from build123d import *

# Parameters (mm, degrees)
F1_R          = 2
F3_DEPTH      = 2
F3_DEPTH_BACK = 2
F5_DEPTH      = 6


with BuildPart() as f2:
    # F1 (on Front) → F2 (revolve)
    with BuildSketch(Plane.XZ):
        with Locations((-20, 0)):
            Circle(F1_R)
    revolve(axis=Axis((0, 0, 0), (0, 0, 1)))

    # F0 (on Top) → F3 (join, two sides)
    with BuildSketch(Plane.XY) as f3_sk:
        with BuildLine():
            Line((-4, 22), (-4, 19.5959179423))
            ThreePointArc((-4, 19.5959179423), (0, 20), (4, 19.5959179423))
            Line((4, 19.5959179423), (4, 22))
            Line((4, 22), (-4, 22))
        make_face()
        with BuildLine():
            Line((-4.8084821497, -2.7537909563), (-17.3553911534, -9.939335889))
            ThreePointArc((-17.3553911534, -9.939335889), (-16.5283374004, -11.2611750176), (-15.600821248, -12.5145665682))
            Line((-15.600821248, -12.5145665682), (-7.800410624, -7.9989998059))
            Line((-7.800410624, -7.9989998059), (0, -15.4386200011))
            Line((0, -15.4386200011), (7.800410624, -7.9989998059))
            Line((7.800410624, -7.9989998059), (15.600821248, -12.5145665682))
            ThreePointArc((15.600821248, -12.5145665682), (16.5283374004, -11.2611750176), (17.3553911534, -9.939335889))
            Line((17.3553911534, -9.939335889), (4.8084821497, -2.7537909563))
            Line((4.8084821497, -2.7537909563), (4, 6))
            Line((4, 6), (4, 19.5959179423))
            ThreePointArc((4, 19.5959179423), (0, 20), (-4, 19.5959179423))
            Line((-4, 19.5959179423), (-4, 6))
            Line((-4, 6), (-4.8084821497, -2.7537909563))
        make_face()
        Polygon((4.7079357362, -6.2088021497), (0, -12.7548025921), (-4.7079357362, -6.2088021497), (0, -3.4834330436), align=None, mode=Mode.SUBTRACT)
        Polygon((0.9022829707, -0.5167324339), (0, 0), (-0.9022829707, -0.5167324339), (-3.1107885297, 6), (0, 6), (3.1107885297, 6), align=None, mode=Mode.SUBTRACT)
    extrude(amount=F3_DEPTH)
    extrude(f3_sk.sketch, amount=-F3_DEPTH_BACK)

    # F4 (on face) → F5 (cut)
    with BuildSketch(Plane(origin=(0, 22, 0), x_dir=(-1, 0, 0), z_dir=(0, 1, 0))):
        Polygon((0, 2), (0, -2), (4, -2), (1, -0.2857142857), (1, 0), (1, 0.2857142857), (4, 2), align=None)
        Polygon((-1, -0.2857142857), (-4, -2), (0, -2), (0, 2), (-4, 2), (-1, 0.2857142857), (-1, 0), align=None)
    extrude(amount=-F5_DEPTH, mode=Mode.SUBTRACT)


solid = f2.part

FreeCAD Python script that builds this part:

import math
import FreeCAD as App
import Part
import Sketcher

V = App.Vector

doc = App.newDocument("Part")
body = doc.addObject("PartDesign::Body", "Body")

sketch1 = doc.addObject("Sketcher::SketchObject", "Sketch")
body.addObject(sketch1)
sketch1.AttachmentSupport = (doc.XZ_Plane, [""])
sketch1.MapMode = "FlatFace"
sketch1.addGeometry(Part.Circle(V(-20, 0, 0), V(0, 0, 1), 2), False)
sketch1.addConstraint([
    Sketcher.Constraint("PointOnObject", 0, 3, -1),
    Sketcher.Constraint("Diameter", 0, 4.0),
    Sketcher.Constraint("DistanceX", 0, 3, -1, 1, 20.0),
])
revolution = doc.addObject("PartDesign::Revolution", "Revolution")
body.addObject(revolution)
revolution.Profile = sketch1
revolution.ReferenceAxis = (sketch1, ["V_Axis"])
revolution.Angle = 360

sketch2 = doc.addObject("Sketcher::SketchObject", "Sketch001")
body.addObject(sketch2)
sketch2.AttachmentSupport = (doc.XY_Plane, [""])
sketch2.MapMode = "FlatFace"
sketch2.addGeometry([
    Part.LineSegment(V(-4, 22, 0), V(-4, 6, 0)),
    Part.LineSegment(V(-4, 6, 0), V(-4.8, -2.8, 0)),
    Part.LineSegment(V(-4.8, -2.8, 0), V(-17.4, -9.9, 0)),
    Part.ArcOfCircle(Part.Circle(V(0, 0, 0), V(0, 0, 1), 20), math.radians(-150.2), math.radians(-141.26)),
    Part.LineSegment(V(-15.6, -12.5, 0), V(-7.8, -8, 0)),
    Part.LineSegment(V(-7.8, -8, 0), V(0, -15.4, 0)),
    Part.LineSegment(V(0, -15.4, 0), V(7.8, -8, 0)),
    Part.LineSegment(V(7.8, -8, 0), V(15.6, -12.5, 0)),
    Part.ArcOfCircle(Part.Circle(V(0, 0, 0), V(0, 0, 1), 20), math.radians(-38.74), math.radians(-29.8)),
    Part.LineSegment(V(17.4, -9.9, 0), V(4.8, -2.8, 0)),
    Part.LineSegment(V(4.8, -2.8, 0), V(4, 6, 0)),
    Part.LineSegment(V(4, 6, 0), V(4, 22, 0)),
    Part.LineSegment(V(4, 22, 0), V(-4, 22, 0)),
    Part.LineSegment(V(0, -3.5, 0), V(4.7, -6.2, 0)),
    Part.LineSegment(V(4.7, -6.2, 0), V(0, -12.8, 0)),
    Part.LineSegment(V(0, -12.8, 0), V(-4.7, -6.2, 0)),
    Part.LineSegment(V(-4.7, -6.2, 0), V(0, -3.5, 0)),
    Part.LineSegment(V(3.1, 6, 0), V(0.9, -0.5, 0)),
    Part.LineSegment(V(0.9, -0.5, 0), V(0, 0, 0)),
    Part.LineSegment(V(0, 0, 0), V(-0.9, -0.5, 0)),
    Part.LineSegment(V(-0.9, -0.5, 0), V(-3.1, 6, 0)),
    Part.LineSegment(V(-3.1, 6, 0), V(3.1, 6, 0)),
], False)
sketch2.addConstraint([
    Sketcher.Constraint("Coincident", 0, 2, 1, 1),
    Sketcher.Constraint("Coincident", 1, 2, 2, 1),
    Sketcher.Constraint("Coincident", 2, 2, 3, 1),
    Sketcher.Constraint("Coincident", 3, 2, 4, 1),
    Sketcher.Constraint("Coincident", 4, 2, 5, 1),
    Sketcher.Constraint("Coincident", 5, 2, 6, 1),
    Sketcher.Constraint("Coincident", 6, 2, 7, 1),
    Sketcher.Constraint("Coincident", 7, 2, 8, 1),
    Sketcher.Constraint("Coincident", 8, 2, 9, 1),
    Sketcher.Constraint("Coincident", 9, 2, 10, 1),
    Sketcher.Constraint("Coincident", 10, 2, 11, 1),
    Sketcher.Constraint("Coincident", 11, 2, 12, 1),
    Sketcher.Constraint("Coincident", 12, 2, 0, 1),
    Sketcher.Constraint("Coincident", 13, 2, 14, 1),
    Sketcher.Constraint("Coincident", 14, 2, 15, 1),
    Sketcher.Constraint("Coincident", 15, 2, 16, 1),
    Sketcher.Constraint("Coincident", 16, 2, 13, 1),
    Sketcher.Constraint("Coincident", 17, 2, 18, 1),
    Sketcher.Constraint("Coincident", 18, 2, 19, 1),
    Sketcher.Constraint("Coincident", 19, 2, 20, 1),
    Sketcher.Constraint("Coincident", 20, 2, 21, 1),
    Sketcher.Constraint("Coincident", 21, 2, 17, 1),
    Sketcher.Constraint("Vertical", 0),
    Sketcher.Constraint("Vertical", 11),
    Sketcher.Constraint("Horizontal", 12),
    Sketcher.Constraint("Horizontal", 21),
    Sketcher.Constraint("Coincident", 3, 3, -1, 1),
    Sketcher.Constraint("Coincident", 8, 3, -1, 1),
    Sketcher.Constraint("Coincident", 18, 2, -1, 1),
    Sketcher.Constraint("Equal", 3, 8),
    Sketcher.Constraint("Symmetric", 4, 2, 6, 2, -2),
    Sketcher.Constraint("Symmetric", 1, 2, 9, 2, -2),
    Sketcher.Constraint("Symmetric", 0, 2, 10, 2, -2),
    Sketcher.Constraint("Symmetric", 13, 2, 15, 2, -2),
    Sketcher.Constraint("Symmetric", 17, 2, 19, 2, -2),
    Sketcher.Constraint("PointOnObject", 5, 2, -2),
    Sketcher.Constraint("PointOnObject", 14, 2, -2),
    Sketcher.Constraint("PointOnObject", 16, 2, -2),
    Sketcher.Constraint("Parallel", 7, 13),
    Sketcher.Constraint("Parallel", 4, 16),
    Sketcher.Constraint("Parallel", 9, 18),
    Sketcher.Constraint("Parallel", 2, 19),
    Sketcher.Constraint("Horizontal", 10, 2, 20, 2),
    Sketcher.Constraint("Equal", 17, 20),
    Sketcher.Constraint("Radius", 3, 20.0),
    Sketcher.Constraint("DistanceX", 12, 2, 12, 1, 8.0),
    Sketcher.Constraint("DistanceY", 0, 2, 0, 1, 16.0),
    Sketcher.Constraint("DistanceY", -1, 1, 0, 2, 6.0),
    Sketcher.Constraint("DistanceY", 4, 2, -1, 1, 7.999),
    Sketcher.Constraint("DistanceY", 14, 2, 13, 2, 6.546),
    Sketcher.Constraint("DistanceY", 16, 2, 17, 2, 2.966701),
    Sketcher.Constraint("DistanceX", 17, 2, 9, 2, 3.906199),
    Sketcher.Constraint("Distance", 5, 10.779349),
    Sketcher.Constraint("Distance", 13, 5.43988),
    Sketcher.Constraint("Distance", 17, 6.880792),
    Sketcher.Constraint("DistanceX", 21, 1, 21, 2, 6.221577),
    Sketcher.Constraint("DistanceY", 1, 2, -1, 1, 2.753791),
    Sketcher.Constraint("DistanceX", 2, 2, -1, 1, 17.355391),
    Sketcher.Constraint("DistanceX", 3, 2, -1, 1, 15.600821),
    Sketcher.Constraint("DistanceX", 4, 2, -1, 1, 7.800411),
])
pad1 = doc.addObject("PartDesign::Pad", "Pad")
body.addObject(pad1)
pad1.Profile = sketch2
pad1.Type = "TwoLengths"
pad1.Length = 2
pad1.Length2 = 2

sketch3 = doc.addObject("Sketcher::SketchObject", "Sketch002")
body.addObject(sketch3)
sketch3.AttachmentSupport = (doc.XZ_Plane, [""])
sketch3.MapMode = "FlatFace"
sketch3.AttachmentOffset = App.Placement(V(0, 0, -22), App.Rotation())
sketch3.addGeometry([
    Part.LineSegment(V(-4, -2, 0), V(-1, -0.3, 0)),
    Part.LineSegment(V(-1, -0.3, 0), V(-1, 0.3, 0)),
    Part.LineSegment(V(-1, 0.3, 0), V(-4, 2, 0)),
    Part.LineSegment(V(-4, 2, 0), V(4, 2, 0)),
    Part.LineSegment(V(4, 2, 0), V(1, 0.3, 0)),
    Part.LineSegment(V(1, 0.3, 0), V(1, -0.3, 0)),
    Part.LineSegment(V(1, -0.3, 0), V(4, -2, 0)),
    Part.LineSegment(V(4, -2, 0), V(-4, -2, 0)),
], False)
sketch3.addConstraint([
    Sketcher.Constraint("Coincident", 0, 2, 1, 1),
    Sketcher.Constraint("Coincident", 1, 2, 2, 1),
    Sketcher.Constraint("Coincident", 2, 2, 3, 1),
    Sketcher.Constraint("Coincident", 3, 2, 4, 1),
    Sketcher.Constraint("Coincident", 4, 2, 5, 1),
    Sketcher.Constraint("Coincident", 5, 2, 6, 1),
    Sketcher.Constraint("Coincident", 6, 2, 7, 1),
    Sketcher.Constraint("Coincident", 7, 2, 0, 1),
    Sketcher.Constraint("Vertical", 1),
    Sketcher.Constraint("Horizontal", 3),
    Sketcher.Constraint("Vertical", 5),
    Sketcher.Constraint("Horizontal", 7),
    Sketcher.Constraint("Symmetric", 0, 2, 4, 2, -1, 1),
    Sketcher.Constraint("Symmetric", 2, 2, 6, 2, -1, 1),
    Sketcher.Constraint("Parallel", 0, 4),
    Sketcher.Constraint("Parallel", 2, 6),
    Sketcher.Constraint("Horizontal", 1, 2, 4, 2),
    Sketcher.Constraint("Vertical", 3, 2, 6, 2),
    Sketcher.Constraint("DistanceX", 3, 1, 3, 2, 8.0),
    Sketcher.Constraint("DistanceX", 0, 2, -1, 1, 1.0),
    Sketcher.Constraint("DistanceY", -1, 1, 2, 2, 2.0),
    Sketcher.Constraint("DistanceY", 1, 1, 1, 2, 0.571429),
])
pocket1 = doc.addObject("PartDesign::Pocket", "Pocket")
body.addObject(pocket1)
pocket1.Profile = sketch3
pocket1.Length = 6
pocket1.Reversed = True

doc.recompute()
